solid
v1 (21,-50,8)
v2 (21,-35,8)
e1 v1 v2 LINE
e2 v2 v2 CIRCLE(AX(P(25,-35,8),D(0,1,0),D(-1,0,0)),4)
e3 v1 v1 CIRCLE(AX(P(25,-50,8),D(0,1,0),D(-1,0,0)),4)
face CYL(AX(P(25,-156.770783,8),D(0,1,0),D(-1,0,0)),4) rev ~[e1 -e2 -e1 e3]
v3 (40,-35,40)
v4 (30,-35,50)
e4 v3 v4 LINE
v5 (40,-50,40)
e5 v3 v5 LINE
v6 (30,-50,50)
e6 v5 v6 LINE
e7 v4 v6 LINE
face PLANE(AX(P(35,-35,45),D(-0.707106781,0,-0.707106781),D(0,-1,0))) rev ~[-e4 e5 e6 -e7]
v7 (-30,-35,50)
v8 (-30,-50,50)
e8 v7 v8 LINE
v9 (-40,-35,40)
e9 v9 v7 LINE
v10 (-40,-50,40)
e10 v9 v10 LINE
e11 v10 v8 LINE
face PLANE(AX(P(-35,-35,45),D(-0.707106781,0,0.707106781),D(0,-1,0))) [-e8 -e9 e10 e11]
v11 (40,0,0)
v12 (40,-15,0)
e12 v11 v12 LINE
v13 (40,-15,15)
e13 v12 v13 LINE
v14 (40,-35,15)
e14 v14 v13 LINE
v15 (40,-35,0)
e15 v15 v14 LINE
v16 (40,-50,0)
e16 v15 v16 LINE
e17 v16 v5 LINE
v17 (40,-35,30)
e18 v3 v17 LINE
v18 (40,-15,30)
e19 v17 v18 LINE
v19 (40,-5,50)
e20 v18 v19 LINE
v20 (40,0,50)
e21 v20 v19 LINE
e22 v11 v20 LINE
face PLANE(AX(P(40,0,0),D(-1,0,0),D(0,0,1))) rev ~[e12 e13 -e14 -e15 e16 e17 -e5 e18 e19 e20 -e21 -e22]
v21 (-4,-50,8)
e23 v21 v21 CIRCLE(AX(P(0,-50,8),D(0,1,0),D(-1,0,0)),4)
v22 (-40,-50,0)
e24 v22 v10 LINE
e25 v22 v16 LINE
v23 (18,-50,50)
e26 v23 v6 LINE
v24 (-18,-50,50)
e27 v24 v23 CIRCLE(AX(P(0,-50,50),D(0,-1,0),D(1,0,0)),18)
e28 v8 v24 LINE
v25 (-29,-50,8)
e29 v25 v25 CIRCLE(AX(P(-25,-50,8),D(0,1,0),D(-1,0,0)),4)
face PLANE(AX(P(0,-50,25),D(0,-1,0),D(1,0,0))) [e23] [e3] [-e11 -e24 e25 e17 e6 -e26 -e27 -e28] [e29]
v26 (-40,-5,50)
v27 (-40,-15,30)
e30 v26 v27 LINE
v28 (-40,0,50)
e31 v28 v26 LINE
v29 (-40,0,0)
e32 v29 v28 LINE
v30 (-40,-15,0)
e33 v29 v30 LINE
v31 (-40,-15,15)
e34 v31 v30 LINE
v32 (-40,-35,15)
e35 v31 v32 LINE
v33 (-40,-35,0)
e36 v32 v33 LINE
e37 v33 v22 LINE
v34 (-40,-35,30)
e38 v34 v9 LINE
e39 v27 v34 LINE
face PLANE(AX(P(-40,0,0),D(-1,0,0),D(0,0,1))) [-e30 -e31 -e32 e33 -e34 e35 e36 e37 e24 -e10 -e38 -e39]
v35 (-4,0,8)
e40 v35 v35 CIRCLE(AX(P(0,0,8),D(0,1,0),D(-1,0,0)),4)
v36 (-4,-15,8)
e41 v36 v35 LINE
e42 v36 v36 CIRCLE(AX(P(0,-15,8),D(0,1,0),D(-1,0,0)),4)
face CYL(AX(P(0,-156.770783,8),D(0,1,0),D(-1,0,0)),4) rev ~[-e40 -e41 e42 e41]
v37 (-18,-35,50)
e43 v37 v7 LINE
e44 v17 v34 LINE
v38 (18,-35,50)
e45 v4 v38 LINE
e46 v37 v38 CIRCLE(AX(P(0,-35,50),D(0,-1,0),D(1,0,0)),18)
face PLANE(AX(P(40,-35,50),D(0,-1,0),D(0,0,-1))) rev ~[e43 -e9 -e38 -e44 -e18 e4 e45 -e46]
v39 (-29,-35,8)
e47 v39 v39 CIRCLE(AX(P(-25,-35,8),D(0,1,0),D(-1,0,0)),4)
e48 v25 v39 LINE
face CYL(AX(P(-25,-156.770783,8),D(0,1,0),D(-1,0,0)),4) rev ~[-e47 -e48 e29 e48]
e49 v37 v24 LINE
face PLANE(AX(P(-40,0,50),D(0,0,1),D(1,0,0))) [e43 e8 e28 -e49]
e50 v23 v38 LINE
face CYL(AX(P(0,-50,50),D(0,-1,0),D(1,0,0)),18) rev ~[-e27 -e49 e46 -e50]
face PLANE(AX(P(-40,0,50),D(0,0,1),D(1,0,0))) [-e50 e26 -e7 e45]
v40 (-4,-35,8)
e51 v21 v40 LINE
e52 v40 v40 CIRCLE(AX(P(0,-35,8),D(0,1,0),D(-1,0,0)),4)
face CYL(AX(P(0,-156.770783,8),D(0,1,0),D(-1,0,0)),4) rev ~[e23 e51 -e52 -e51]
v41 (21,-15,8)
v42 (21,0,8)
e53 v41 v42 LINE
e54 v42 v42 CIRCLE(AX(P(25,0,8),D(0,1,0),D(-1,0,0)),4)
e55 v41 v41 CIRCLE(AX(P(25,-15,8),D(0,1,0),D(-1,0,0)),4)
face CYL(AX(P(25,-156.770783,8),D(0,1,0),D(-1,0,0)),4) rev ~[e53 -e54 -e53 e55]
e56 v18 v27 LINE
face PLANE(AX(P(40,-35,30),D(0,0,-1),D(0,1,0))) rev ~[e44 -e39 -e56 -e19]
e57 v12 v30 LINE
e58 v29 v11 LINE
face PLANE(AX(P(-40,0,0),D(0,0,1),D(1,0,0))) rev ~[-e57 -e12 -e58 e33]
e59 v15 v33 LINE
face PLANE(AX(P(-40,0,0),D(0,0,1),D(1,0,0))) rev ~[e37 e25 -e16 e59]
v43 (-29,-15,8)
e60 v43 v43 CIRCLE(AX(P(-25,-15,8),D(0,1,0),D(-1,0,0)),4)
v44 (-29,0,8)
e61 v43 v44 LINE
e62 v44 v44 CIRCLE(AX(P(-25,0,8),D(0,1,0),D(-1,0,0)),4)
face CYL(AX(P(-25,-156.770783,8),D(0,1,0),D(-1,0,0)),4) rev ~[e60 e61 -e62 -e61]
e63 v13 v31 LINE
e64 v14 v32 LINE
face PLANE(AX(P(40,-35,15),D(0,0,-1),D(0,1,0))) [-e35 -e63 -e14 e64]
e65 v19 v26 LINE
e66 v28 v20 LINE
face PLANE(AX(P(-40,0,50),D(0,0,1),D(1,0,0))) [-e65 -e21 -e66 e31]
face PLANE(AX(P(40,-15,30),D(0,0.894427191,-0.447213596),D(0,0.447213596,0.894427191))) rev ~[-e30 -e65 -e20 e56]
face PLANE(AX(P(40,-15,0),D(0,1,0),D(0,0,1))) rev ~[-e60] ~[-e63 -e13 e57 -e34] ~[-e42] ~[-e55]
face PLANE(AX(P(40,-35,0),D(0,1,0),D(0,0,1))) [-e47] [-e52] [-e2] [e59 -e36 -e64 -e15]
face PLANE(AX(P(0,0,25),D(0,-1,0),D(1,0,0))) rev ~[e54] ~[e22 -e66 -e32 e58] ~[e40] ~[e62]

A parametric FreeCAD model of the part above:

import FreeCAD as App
import Part
import Sketcher
from FreeCAD import Vector
Q = App.Units.Quantity


def edges_at(feature, points):
    """Names of the edges that pass closest to the given points."""
    edges = feature.Shape.Edges
    near = lambda p: min(range(len(edges)), key=lambda i: edges[i].distToShape(Part.Vertex(*p))[0])
    return sorted({f"Edge{near(p) + 1}" for p in points})

doc = App.newDocument("Part")
body = doc.addObject("PartDesign::Body", "Body")

# Sketch on XZ plane
sketch1 = body.newObject("Sketcher::SketchObject", "Sketch")
sketch1.AttachmentSupport = (doc.getObject("XZ_Plane"), [""])
sketch1.MapMode = "FlatFace"
sketch1.addGeometry([
    Part.LineSegment(Vector(-40, 50, 0), Vector(-40, 0, 0)),
    Part.LineSegment(Vector(-40, 0, 0), Vector(40, 0, 0)),
    Part.LineSegment(Vector(40, 0, 0), Vector(40, 50, 0)),
    Part.LineSegment(Vector(40, 50, 0), Vector(-40, 50, 0)),
], False)
sketch1.addConstraint([
    Sketcher.Constraint("Coincident", 0, 2, 1, 1),
    Sketcher.Constraint("Coincident", 1, 2, 2, 1),
    Sketcher.Constraint("Coincident", 2, 2, 3, 1),
    Sketcher.Constraint("Coincident", 3, 2, 0, 1),
    Sketcher.Constraint("Vertical", 0),
    Sketcher.Constraint("Horizontal", 1),
    Sketcher.Constraint("Vertical", 2),
    Sketcher.Constraint("Horizontal", 3),
    Sketcher.Constraint("Symmetric", 0, 2, 1, 2, -1, 1),
    Sketcher.Constraint("DistanceX", 1, 1, 1, 2, Q("80 mm")),
    Sketcher.Constraint("DistanceY", 0, 2, 0, 1, Q("50 mm")),
])
pad1 = body.newObject("PartDesign::Pad", "Pad")
pad1.Profile = sketch1
pad1.Length = 50

# Sketch on YZ plane
sketch2 = body.newObject("Sketcher::SketchObject", "Sketch001")
sketch2.AttachmentSupport = (doc.getObject("YZ_Plane"), [""])
sketch2.MapMode = "FlatFace"
sketch2.AttachmentOffset = App.Placement(Vector(0, 0, 40), App.Rotation())
sketch2.addGeometry([
    Part.LineSegment(Vector(-35, 15, 0), Vector(-35, 0, 0)),  # 0
    Part.LineSegment(Vector(-35, 0, 0), Vector(-15, 0, 0)),  # 1
    Part.LineSegment(Vector(-15, 0, 0), Vector(-15, 15, 0)),  # 2
    Part.LineSegment(Vector(-15, 15, 0), Vector(-35, 15, 0)),  # 3
    Part.LineSegment(Vector(-5, 50, 0), Vector(-35, 50, 0)),  # 4
    Part.LineSegment(Vector(-35, 50, 0), Vector(-35, 30, 0)),  # 5
    Part.LineSegment(Vector(-35, 30, 0), Vector(-15, 30, 0)),  # 6
    Part.LineSegment(Vector(-15, 30, 0), Vector(-5, 50, 0)),  # 7
], False)
sketch2.addConstraint([
    Sketcher.Constraint("Coincident", 0, 2, 1, 1),
    Sketcher.Constraint("Coincident", 1, 2, 2, 1),
    Sketcher.Constraint("Coincident", 2, 2, 3, 1),
    Sketcher.Constraint("Coincident", 3, 2, 0, 1),
    Sketcher.Constraint("Coincident", 4, 2, 5, 1),
    Sketcher.Constraint("Coincident", 5, 2, 6, 1),
    Sketcher.Constraint("Coincident", 6, 2, 7, 1),
    Sketcher.Constraint("Coincident", 7, 2, 4, 1),
    Sketcher.Constraint("Vertical", 0),
    Sketcher.Constraint("Horizontal", 1),
    Sketcher.Constraint("Vertical", 2),
    Sketcher.Constraint("Horizontal", 3),
    Sketcher.Constraint("Horizontal", 4),
    Sketcher.Constraint("Vertical", 5),
    Sketcher.Constraint("Horizontal", 6),
    Sketcher.Constraint("PointOnObject", 0, 2, -1),
    Sketcher.Constraint("Vertical", 3, 2, 4, 2),
    Sketcher.Constraint("Vertical", 2, 2, 6, 2),
    Sketcher.Constraint("Equal", 6, 5),
    Sketcher.Constraint("DistanceX", 1, 1, 1, 2, Q("20 mm")),
    Sketcher.Constraint("DistanceX", 4, 2, 4, 1, Q("30 mm")),
    Sketcher.Constraint("DistanceY", 0, 2, 0, 1, Q("15 mm")),
    Sketcher.Constraint("DistanceX", 0, 2, -1, 1, Q("35 mm")),
    Sketcher.Constraint("DistanceY", -1, 1, 4, 2, Q("50 mm")),
])
pocket1 = body.newObject("PartDesign::Pocket", "Pocket")
pocket1.Profile = sketch2
pocket1.Type = "ThroughAll"

# Sketch on XZ plane
sketch3 = body.newObject("Sketcher::SketchObject", "Sketch002")
sketch3.AttachmentSupport = (doc.getObject("XZ_Plane"), [""])
sketch3.MapMode = "FlatFace"
sketch3.AttachmentOffset = App.Placement(Vector(0, 0, 50), App.Rotation())
sketch3.addGeometry(Part.Circle(Vector(0, 50, 0), Vector(0, 0, 1), 18), False)
sketch3.addConstraint([
    Sketcher.Constraint("PointOnObject", 0, 3, -2),
    Sketcher.Constraint("Diameter", 0, Q("36 mm")),
    Sketcher.Constraint("DistanceY", -1, 1, 0, 3, Q("50 mm")),
])
pocket2 = body.newObject("PartDesign::Pocket", "Pocket001")
pocket2.Profile = sketch3
pocket2.Length = 15

# Sketch on XZ plane
sketch4 = body.newObject("Sketcher::SketchObject", "Sketch003")
sketch4.AttachmentSupport = (doc.getObject("XZ_Plane"), [""])
sketch4.MapMode = "FlatFace"
sketch4.AttachmentOffset = App.Placement(Vector(0, 0, 50), App.Rotation())
sketch4.addGeometry([
    Part.Circle(Vector(-25, 8, 0), Vector(0, 0, 1), 4),
    Part.Circle(Vector(0, 8, 0), Vector(0, 0, 1), 4),
    Part.Circle(Vector(25, 8, 0), Vector(0, 0, 1), 4),
], False)
sketch4.addConstraint([
    Sketcher.Constraint("Equal", 0, 1),
    Sketcher.Constraint("Equal", 1, 2),
    Sketcher.Constraint("Symmetric", 0, 3, 2, 3, -2),
    Sketcher.Constraint("PointOnObject", 1, 3, -2),
    Sketcher.Constraint("Horizontal", 0, 3, 1, 3),
    Sketcher.Constraint("Diameter", 0, Q("8 mm")),
    Sketcher.Constraint("DistanceX", 0, 3, -1, 1, Q("25 mm")),
    Sketcher.Constraint("DistanceY", -1, 1, 0, 3, Q("8 mm")),
])
doc.recompute()
hole = body.newObject("PartDesign::Hole", "Hole")
hole.Profile = sketch4
hole.ThreadType = "None"
hole.Diameter = 8
hole.DepthType = "ThroughAll"
doc.recompute()

chamfer = body.newObject("PartDesign::Chamfer", "Chamfer")
chamfer.Base = (hole, edges_at(hole, [(-40, -42.5, 50), (40, -42.5, 50)]))
chamfer.Size = 10

doc.recompute()
